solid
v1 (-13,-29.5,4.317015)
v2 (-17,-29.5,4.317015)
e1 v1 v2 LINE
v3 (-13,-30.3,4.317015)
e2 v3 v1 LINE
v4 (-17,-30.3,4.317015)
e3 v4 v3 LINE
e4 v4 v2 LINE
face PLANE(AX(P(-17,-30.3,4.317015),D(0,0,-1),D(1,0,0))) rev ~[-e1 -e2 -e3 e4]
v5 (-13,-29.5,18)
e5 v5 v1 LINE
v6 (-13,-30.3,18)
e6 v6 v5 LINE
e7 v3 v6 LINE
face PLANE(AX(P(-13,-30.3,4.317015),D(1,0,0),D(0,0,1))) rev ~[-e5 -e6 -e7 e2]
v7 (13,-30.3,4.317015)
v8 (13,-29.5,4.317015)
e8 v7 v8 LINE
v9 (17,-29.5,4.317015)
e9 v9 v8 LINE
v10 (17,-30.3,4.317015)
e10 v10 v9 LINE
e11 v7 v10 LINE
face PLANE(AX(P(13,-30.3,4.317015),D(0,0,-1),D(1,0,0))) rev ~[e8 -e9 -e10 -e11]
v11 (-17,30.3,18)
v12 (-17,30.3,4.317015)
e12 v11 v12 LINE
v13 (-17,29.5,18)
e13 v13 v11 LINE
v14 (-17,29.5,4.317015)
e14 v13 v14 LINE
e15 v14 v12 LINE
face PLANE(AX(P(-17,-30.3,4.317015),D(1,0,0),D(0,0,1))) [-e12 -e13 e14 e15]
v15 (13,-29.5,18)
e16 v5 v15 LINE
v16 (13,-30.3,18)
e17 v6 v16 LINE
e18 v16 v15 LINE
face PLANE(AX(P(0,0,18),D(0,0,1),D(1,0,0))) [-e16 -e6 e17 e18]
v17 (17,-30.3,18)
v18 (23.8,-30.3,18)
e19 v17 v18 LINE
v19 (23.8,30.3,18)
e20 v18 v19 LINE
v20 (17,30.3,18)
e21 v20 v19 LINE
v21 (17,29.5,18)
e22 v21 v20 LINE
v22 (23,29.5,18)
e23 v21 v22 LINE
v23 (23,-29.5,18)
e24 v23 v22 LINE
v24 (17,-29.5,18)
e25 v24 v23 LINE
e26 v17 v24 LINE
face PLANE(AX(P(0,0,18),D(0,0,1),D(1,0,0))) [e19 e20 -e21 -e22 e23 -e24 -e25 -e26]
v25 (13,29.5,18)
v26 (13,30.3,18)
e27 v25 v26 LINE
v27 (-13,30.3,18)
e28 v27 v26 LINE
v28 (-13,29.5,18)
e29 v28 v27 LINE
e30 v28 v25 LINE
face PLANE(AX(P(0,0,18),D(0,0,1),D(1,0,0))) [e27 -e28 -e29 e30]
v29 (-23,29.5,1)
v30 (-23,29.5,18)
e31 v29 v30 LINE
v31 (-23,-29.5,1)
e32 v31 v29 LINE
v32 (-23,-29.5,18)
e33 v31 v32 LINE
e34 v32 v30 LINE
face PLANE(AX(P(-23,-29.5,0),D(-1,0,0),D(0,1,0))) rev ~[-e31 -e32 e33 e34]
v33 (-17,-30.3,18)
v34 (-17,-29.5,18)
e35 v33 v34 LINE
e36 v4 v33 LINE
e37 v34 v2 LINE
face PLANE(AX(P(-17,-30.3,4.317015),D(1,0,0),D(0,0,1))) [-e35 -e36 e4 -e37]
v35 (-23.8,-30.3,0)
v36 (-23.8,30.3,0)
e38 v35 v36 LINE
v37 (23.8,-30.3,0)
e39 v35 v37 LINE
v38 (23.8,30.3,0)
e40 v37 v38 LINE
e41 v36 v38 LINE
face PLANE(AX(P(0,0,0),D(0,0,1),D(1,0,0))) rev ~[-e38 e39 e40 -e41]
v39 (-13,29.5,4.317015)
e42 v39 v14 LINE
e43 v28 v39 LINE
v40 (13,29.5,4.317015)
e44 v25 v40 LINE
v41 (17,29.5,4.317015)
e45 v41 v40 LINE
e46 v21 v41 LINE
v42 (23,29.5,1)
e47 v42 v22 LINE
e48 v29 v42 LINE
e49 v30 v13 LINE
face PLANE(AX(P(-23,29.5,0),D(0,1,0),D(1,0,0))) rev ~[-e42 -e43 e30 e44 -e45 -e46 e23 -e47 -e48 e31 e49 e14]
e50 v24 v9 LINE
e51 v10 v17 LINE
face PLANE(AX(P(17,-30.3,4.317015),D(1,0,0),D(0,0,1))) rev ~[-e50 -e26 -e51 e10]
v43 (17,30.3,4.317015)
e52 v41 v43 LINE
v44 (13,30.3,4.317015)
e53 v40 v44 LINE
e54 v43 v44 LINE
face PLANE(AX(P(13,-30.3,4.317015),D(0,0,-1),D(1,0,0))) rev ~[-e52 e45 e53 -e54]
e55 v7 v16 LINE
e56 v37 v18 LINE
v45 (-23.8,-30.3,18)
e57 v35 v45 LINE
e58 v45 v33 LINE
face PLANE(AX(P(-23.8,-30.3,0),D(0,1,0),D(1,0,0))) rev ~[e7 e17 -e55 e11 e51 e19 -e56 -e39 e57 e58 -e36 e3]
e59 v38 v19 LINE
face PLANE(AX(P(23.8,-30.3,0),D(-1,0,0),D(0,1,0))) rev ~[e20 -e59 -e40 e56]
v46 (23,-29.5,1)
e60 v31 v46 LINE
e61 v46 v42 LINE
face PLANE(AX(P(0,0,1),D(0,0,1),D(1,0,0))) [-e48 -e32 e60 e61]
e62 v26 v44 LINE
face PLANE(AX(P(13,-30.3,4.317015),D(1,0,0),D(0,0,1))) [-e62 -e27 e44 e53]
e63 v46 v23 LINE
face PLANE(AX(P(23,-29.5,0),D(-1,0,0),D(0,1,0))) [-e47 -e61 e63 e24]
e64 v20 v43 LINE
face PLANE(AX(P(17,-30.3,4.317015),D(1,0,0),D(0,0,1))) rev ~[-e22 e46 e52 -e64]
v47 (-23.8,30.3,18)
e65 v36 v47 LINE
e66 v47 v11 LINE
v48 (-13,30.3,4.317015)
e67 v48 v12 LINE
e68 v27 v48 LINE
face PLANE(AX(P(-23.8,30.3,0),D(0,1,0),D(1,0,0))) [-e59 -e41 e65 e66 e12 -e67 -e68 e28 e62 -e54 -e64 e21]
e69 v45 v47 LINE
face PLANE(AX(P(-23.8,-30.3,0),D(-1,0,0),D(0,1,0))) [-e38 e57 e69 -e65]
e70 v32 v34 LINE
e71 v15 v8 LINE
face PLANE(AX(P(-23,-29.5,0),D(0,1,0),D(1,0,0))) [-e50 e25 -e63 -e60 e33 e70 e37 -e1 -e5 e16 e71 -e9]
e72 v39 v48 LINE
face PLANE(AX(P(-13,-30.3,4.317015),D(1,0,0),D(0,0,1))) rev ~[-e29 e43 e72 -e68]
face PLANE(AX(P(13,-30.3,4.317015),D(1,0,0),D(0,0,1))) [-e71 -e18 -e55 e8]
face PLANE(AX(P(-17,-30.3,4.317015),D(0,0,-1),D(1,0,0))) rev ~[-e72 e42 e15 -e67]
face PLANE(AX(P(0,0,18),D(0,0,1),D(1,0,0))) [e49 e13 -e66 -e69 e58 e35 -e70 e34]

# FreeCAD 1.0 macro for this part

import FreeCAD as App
import Part
import Sketcher
from FreeCAD import Vector
Q = App.Units.Quantity

doc = App.newDocument("Part")
body = doc.addObject("PartDesign::Body", "Body")

# Sketch on XY plane
sketch1 = body.newObject("Sketcher::SketchObject", "Sketch")
sketch1.AttachmentSupport = (doc.getObject("XY_Plane"), [""])
sketch1.MapMode = "FlatFace"
sketch1.addGeometry([
    Part.LineSegment(Vector(-23, 29.5, 0), Vector(-23, -29.5, 0)),
    Part.LineSegment(Vector(-23, -29.5, 0), Vector(23, -29.5, 0)),
    Part.LineSegment(Vector(23, -29.5, 0), Vector(23, 29.5, 0)),
    Part.LineSegment(Vector(23, 29.5, 0), Vector(-23, 29.5, 0)),
], False)
sketch1.addConstraint([
    Sketcher.Constraint("Coincident", 0, 2, 1, 1),
    Sketcher.Constraint("Coincident", 1, 2, 2, 1),
    Sketcher.Constraint("Coincident", 2, 2, 3, 1),
    Sketcher.Constraint("Coincident", 3, 2, 0, 1),
    Sketcher.Constraint("Vertical", 0),
    Sketcher.Constraint("Horizontal", 1),
    Sketcher.Constraint("Vertical", 2),
    Sketcher.Constraint("Horizontal", 3),
    Sketcher.Constraint("Symmetric", 0, 2, 2, 2, -1, 1),
    Sketcher.Constraint("DistanceX", 1, 1, 1, 2, Q("46 mm")),
    Sketcher.Constraint("DistanceY", 0, 2, 0, 1, Q("59 mm")),
])
pad1 = body.newObject("PartDesign::Pad", "Pad")
pad1.Profile = sketch1
pad1.Length = 1

# Sketch on XY plane
sketch2 = body.newObject("Sketcher::SketchObject", "Sketch001")
sketch2.AttachmentSupport = (doc.getObject("XY_Plane"), [""])
sketch2.MapMode = "FlatFace"
sketch2.addGeometry([
    Part.LineSegment(Vector(-23.8, 30.3, 0), Vector(-23.8, -30.3, 0)),  # 0
    Part.LineSegment(Vector(-23.8, -30.3, 0), Vector(23.8, -30.3, 0)),  # 1
    Part.LineSegment(Vector(23.8, -30.3, 0), Vector(23.8, 30.3, 0)),  # 2
    Part.LineSegment(Vector(23.8, 30.3, 0), Vector(-23.8, 30.3, 0)),  # 3
    Part.LineSegment(Vector(23, -29.5, 0), Vector(-23, -29.5, 0)),  # 4
    Part.LineSegment(Vector(-23, -29.5, 0), Vector(-23, 29.5, 0)),  # 5
    Part.LineSegment(Vector(-23, 29.5, 0), Vector(23, 29.5, 0)),  # 6
    Part.LineSegment(Vector(23, 29.5, 0), Vector(23, -29.5, 0)),  # 7
], False)
sketch2.addConstraint([
    Sketcher.Constraint("Coincident", 0, 2, 1, 1),
    Sketcher.Constraint("Coincident", 1, 2, 2, 1),
    Sketcher.Constraint("Coincident", 2, 2, 3, 1),
    Sketcher.Constraint("Coincident", 3, 2, 0, 1),
    Sketcher.Constraint("Coincident", 4, 2, 5, 1),
    Sketcher.Constraint("Coincident", 5, 2, 6, 1),
    Sketcher.Constraint("Coincident", 6, 2, 7, 1),
    Sketcher.Constraint("Coincident", 7, 2, 4, 1),
    Sketcher.Constraint("Vertical", 0),
    Sketcher.Constraint("Horizontal", 1),
    Sketcher.Constraint("Vertical", 2),
    Sketcher.Constraint("Horizontal", 3),
    Sketcher.Constraint("Horizontal", 4),
    Sketcher.Constraint("Vertical", 5),
    Sketcher.Constraint("Horizontal", 6),
    Sketcher.Constraint("Vertical", 7),
    Sketcher.Constraint("Symmetric", 0, 2, 2, 2, -1, 1),
    Sketcher.Constraint("Symmetric", 4, 2, 6, 2, -1, 1),
    Sketcher.Constraint("DistanceX", 4, 2, 4, 1, Q("46 mm")),
    Sketcher.Constraint("DistanceY", 5, 1, 5, 2, Q("59 mm")),
    Sketcher.Constraint("DistanceX", 1, 1, 1, 2, Q("47.6 mm")),
    Sketcher.Constraint("DistanceY", 0, 2, 0, 1, Q("60.6 mm")),
])
pad2 = body.newObject("PartDesign::Pad", "Pad001")
pad2.Profile = sketch2
pad2.Length = 18

# Sketch on XZ plane
sketch3 = body.newObject("Sketcher::SketchObject", "Sketch002")
sketch3.AttachmentSupport = (doc.getObject("XZ_Plane"), [""])
sketch3.MapMode = "FlatFace"
sketch3.AttachmentOffset = App.Placement(Vector(0, 0, 30.3), App.Rotation())
sketch3.addGeometry([
    Part.LineSegment(Vector(-17, 18, 0), Vector(-17, 4.317015, 0)),  # 0
    Part.LineSegment(Vector(-17, 4.317015, 0), Vector(-13, 4.317015, 0)),  # 1
    Part.LineSegment(Vector(-13, 4.317015, 0), Vector(-13, 18, 0)),  # 2
    Part.LineSegment(Vector(-13, 18, 0), Vector(-17, 18, 0)),  # 3
    Part.LineSegment(Vector(13, 18, 0), Vector(13, 4.317015, 0)),  # 4
    Part.LineSegment(Vector(13, 4.317015, 0), Vector(17, 4.317015, 0)),  # 5
    Part.LineSegment(Vector(17, 4.317015, 0), Vector(17, 18, 0)),  # 6
    Part.LineSegment(Vector(17, 18, 0), Vector(13, 18, 0)),  # 7
], False)
sketch3.addConstraint([
    Sketcher.Constraint("Coincident", 0, 2, 1, 1),
    Sketcher.Constraint("Coincident", 1, 2, 2, 1),
    Sketcher.Constraint("Coincident", 2, 2, 3, 1),
    Sketcher.Constraint("Coincident", 3, 2, 0, 1),
    Sketcher.Constraint("Coincident", 4, 2, 5, 1),
    Sketcher.Constraint("Coincident", 5, 2, 6, 1),
    Sketcher.Constraint("Coincident", 6, 2, 7, 1),
    Sketcher.Constraint("Coincident", 7, 2, 4, 1),
    Sketcher.Constraint("Vertical", 0),
    Sketcher.Constraint("Horizontal", 1),
    Sketcher.Constraint("Vertical", 2),
    Sketcher.Constraint("Horizontal", 3),
    Sketcher.Constraint("Vertical", 4),
    Sketcher.Constraint("Horizontal", 5),
    Sketcher.Constraint("Vertical", 6),
    Sketcher.Constraint("Horizontal", 7),
    Sketcher.Constraint("Symmetric", 1, 2, 4, 2, -2),
    Sketcher.Constraint("Symmetric", 3, 2, 6, 2, -2),
    Sketcher.Constraint("DistanceX", 1, 1, 1, 2, Q("4 mm")),
    Sketcher.Constraint("DistanceX", 0, 2, -1, 1, Q("17 mm")),
    Sketcher.Constraint("DistanceY", -1, 1, 2, 2, Q("18 mm")),
    Sketcher.Constraint("DistanceY", 0, 2, 0, 1, Q("13.682985 mm")),
])
pocket1 = body.newObject("PartDesign::Pocket", "Pocket")
pocket1.Profile = sketch3
pocket1.Length = 100

doc.recompute()
